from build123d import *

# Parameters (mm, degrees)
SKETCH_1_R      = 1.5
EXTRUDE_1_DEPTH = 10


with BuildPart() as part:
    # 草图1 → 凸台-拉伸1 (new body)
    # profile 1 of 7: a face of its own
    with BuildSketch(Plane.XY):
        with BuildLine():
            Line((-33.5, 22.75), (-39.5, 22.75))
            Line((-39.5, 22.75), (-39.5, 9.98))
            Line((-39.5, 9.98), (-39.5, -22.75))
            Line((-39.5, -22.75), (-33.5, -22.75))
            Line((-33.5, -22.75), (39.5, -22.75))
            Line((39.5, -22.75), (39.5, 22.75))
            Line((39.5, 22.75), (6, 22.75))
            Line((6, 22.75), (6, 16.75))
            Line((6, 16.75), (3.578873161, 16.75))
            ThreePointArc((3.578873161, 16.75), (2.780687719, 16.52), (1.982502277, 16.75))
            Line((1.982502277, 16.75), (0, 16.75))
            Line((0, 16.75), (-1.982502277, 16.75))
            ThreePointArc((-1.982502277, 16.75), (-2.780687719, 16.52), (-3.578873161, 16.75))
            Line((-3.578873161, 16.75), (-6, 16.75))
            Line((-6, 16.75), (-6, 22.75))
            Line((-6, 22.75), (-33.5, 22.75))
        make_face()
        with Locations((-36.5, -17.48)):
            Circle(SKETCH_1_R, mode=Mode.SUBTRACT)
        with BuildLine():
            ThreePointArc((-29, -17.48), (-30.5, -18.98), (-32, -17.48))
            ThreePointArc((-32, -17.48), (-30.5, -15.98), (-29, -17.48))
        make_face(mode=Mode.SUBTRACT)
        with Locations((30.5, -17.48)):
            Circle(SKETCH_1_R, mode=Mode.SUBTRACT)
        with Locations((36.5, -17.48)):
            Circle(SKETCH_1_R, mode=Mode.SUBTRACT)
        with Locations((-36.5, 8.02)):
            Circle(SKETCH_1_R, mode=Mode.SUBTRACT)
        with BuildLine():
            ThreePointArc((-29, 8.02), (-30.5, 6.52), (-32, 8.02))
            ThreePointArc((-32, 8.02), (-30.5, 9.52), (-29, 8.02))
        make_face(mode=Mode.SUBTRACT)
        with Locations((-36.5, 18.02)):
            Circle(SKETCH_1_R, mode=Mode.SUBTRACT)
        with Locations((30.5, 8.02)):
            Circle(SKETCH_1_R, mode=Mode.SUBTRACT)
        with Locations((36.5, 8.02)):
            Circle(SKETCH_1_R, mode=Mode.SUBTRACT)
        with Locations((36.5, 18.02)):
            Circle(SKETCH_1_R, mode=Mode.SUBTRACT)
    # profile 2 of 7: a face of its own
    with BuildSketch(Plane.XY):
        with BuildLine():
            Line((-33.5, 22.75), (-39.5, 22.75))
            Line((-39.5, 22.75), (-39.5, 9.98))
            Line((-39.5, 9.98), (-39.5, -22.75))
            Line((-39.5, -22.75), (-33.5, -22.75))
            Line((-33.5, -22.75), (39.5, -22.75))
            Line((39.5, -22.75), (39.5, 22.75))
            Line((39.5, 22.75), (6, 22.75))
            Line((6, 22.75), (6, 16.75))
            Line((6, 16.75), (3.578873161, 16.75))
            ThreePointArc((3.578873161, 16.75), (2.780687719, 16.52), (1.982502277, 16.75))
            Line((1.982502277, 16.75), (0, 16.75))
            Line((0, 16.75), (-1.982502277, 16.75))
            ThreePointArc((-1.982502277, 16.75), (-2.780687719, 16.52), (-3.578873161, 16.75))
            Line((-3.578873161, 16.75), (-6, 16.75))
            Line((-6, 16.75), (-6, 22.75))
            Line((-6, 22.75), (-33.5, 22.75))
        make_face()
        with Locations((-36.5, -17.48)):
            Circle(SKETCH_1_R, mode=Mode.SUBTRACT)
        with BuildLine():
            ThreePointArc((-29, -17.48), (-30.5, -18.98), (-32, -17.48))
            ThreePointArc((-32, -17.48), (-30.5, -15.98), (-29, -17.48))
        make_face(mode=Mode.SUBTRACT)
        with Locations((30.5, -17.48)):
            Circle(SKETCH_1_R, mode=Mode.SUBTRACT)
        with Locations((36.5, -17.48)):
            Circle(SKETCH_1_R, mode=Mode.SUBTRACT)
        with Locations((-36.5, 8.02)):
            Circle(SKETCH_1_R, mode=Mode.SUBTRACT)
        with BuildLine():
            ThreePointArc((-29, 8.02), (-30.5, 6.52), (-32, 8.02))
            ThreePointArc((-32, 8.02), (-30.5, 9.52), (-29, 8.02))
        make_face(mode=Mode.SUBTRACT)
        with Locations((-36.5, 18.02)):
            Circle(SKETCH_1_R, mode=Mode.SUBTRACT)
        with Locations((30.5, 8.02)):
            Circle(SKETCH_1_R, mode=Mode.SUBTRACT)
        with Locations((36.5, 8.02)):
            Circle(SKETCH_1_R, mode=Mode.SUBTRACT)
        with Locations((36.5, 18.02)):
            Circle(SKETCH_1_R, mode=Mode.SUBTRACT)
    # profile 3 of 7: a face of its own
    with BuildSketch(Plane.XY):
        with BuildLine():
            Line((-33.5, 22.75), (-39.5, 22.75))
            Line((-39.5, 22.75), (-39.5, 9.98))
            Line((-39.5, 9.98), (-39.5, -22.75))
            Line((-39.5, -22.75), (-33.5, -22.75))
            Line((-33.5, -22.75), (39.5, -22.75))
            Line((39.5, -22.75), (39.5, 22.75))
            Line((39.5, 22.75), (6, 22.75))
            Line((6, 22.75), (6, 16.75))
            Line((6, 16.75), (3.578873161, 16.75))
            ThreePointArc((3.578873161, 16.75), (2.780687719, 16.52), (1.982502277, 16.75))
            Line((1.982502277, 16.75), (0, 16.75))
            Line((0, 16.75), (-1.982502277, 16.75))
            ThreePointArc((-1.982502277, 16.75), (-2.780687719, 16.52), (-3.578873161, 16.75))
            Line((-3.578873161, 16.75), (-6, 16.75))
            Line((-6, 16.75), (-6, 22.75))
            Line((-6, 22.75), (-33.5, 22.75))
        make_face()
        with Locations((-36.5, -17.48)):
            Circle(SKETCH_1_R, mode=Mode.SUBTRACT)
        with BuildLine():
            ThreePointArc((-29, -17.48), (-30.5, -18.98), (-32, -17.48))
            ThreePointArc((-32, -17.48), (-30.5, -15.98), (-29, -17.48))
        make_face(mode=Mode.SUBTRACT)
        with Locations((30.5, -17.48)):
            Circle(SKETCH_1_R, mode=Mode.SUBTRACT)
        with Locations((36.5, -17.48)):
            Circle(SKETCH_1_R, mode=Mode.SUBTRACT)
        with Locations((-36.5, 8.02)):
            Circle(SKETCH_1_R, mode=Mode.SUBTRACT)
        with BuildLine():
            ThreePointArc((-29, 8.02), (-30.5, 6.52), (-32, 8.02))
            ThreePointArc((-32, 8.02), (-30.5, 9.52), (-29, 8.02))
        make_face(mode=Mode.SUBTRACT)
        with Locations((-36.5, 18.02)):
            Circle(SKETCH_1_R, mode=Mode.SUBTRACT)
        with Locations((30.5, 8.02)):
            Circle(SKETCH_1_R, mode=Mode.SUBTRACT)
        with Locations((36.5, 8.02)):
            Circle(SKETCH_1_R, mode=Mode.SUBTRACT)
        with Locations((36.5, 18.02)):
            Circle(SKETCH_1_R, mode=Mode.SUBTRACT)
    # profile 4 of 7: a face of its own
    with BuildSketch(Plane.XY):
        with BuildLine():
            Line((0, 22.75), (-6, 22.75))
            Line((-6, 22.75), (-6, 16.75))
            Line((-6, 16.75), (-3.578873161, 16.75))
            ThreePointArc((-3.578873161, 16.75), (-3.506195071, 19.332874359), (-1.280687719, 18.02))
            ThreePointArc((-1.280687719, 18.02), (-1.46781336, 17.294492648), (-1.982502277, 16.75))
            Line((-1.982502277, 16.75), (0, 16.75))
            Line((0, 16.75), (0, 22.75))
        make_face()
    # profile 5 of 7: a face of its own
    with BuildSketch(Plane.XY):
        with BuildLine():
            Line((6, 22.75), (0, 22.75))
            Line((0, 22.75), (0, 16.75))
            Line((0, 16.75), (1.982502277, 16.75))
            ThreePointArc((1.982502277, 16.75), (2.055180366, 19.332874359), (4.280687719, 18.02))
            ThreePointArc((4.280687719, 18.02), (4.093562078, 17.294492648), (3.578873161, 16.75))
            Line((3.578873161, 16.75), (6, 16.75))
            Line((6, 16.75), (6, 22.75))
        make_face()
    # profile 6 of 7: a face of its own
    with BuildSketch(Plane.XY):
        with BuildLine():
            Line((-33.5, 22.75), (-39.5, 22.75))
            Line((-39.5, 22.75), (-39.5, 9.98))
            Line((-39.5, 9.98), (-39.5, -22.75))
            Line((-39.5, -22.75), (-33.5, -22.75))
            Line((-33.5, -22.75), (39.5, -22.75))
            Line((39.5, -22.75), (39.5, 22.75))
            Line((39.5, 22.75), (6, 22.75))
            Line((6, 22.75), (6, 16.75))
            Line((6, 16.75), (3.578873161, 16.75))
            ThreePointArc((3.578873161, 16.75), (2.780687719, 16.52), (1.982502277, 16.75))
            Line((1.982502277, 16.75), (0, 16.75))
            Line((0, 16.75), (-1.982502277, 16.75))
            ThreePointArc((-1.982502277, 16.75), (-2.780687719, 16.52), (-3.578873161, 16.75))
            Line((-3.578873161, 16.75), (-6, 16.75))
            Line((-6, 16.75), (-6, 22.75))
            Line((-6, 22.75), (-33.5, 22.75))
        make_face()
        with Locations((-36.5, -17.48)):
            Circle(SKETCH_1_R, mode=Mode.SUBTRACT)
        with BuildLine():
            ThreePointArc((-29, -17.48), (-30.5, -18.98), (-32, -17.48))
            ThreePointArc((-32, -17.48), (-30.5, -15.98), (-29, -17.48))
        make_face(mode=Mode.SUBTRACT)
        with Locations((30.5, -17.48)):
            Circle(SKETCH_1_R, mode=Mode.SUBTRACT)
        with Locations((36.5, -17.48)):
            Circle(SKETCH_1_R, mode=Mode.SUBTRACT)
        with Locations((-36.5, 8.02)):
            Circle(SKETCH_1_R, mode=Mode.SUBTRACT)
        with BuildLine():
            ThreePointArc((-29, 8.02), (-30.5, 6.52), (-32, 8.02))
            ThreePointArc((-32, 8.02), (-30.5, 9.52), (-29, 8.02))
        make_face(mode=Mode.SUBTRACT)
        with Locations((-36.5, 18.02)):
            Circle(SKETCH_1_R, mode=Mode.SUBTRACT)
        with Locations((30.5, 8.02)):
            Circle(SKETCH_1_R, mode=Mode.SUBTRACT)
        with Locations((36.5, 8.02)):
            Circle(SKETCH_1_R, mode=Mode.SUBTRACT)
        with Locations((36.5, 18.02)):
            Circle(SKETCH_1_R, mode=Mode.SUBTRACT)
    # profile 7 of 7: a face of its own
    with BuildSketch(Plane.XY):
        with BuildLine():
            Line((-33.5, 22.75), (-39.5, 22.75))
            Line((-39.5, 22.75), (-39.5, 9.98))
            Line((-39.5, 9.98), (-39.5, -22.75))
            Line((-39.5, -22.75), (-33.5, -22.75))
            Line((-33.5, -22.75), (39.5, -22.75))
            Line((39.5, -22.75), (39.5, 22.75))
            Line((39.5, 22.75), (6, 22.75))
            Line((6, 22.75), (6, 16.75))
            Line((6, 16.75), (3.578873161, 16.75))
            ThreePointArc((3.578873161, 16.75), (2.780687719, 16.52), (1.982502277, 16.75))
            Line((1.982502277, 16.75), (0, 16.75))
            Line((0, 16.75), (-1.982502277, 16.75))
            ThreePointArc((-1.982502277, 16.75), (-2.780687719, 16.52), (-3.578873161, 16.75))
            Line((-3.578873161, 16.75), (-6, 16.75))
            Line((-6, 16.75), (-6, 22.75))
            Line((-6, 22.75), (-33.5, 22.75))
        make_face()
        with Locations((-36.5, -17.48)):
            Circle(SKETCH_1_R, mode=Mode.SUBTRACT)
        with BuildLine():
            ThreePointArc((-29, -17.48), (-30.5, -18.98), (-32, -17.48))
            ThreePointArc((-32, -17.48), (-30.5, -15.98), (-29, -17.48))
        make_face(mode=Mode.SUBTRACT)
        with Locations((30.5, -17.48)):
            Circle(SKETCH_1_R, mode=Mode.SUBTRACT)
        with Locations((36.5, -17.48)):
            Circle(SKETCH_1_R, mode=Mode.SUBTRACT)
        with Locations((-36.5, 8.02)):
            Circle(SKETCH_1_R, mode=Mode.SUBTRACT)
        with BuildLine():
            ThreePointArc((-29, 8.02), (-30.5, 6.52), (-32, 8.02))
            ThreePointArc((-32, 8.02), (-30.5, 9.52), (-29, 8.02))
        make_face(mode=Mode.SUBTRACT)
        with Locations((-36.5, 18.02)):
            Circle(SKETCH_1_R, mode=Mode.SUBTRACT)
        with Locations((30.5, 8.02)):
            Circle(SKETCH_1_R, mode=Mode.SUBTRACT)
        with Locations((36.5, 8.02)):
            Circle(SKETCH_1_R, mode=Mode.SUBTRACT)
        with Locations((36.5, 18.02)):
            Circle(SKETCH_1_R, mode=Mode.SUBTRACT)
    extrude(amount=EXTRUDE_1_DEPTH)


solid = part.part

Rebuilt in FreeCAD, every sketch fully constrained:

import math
import FreeCAD as App
import Part
import Sketcher

V = App.Vector
Q = App.Units.Quantity

doc = App.newDocument("Part")
body = doc.addObject("PartDesign::Body", "Body")

# Sketch on XY plane
sketch1 = body.newObject("Sketcher::SketchObject", "Sketch")
sketch1.AttachmentSupport = (doc.getObject("XY_Plane"), [""])
sketch1.MapMode = "FlatFace"
sketch1.addGeometry(Part.LineSegment(V(-39.5, 22.8, 0), V(-39.5, -22.8, 0)), False)
sketch1.addGeometry(Part.LineSegment(V(-39.5, -22.8, 0), V(39.5, -22.8, 0)), False)
sketch1.addGeometry(Part.LineSegment(V(39.5, -22.8, 0), V(39.5, 22.8, 0)), False)
sketch1.addGeometry(Part.LineSegment(V(39.5, 22.8, 0), V(-39.5, 22.8, 0)), False)
sketch1.addGeometry(Part.ArcOfCircle(Part.Circle(V(-2.8, 18, 0), V(0, 0, 1), 1.5), math.radians(-122), math.radians(-58)), False)
sketch1.addGeometry(Part.ArcOfCircle(Part.Circle(V(-2.8, 18, 0), V(0, 0, 1), 1.5), math.radians(0), math.radians(238)), False)
sketch1.addGeometry(Part.ArcOfCircle(Part.Circle(V(-2.8, 18, 0), V(0, 0, 1), 1.5), math.radians(-58), math.radians(0)), False)
sketch1.addGeometry(Part.ArcOfCircle(Part.Circle(V(2.8, 18, 0), V(0, 0, 1), 1.5), math.radians(-122), math.radians(-58)), False)
sketch1.addGeometry(Part.ArcOfCircle(Part.Circle(V(2.8, 18, 0), V(0, 0, 1), 1.5), math.radians(0), math.radians(238)), False)
sketch1.addGeometry(Part.ArcOfCircle(Part.Circle(V(2.8, 18, 0), V(0, 0, 1), 1.5), math.radians(-58), math.radians(0)), False)
sketch1.addGeometry(Part.Circle(V(-36.5, -17.5, 0), V(0, 0, 1), 1.5), False)
sketch1.addGeometry(Part.Circle(V(-30.5, -17.5, 0), V(0, 0, 1), 1.5), False)
sketch1.addGeometry(Part.Circle(V(30.5, -17.5, 0), V(0, 0, 1), 1.5), False)
sketch1.addGeometry(Part.Circle(V(36.5, -17.5, 0), V(0, 0, 1), 1.5), False)
sketch1.addGeometry(Part.Circle(V(-36.5, 8, 0), V(0, 0, 1), 1.5), False)
sketch1.addGeometry(Part.Circle(V(-30.5, 8, 0), V(0, 0, 1), 1.5), False)
sketch1.addGeometry(Part.Circle(V(-36.5, 18, 0), V(0, 0, 1), 1.5), False)
sketch1.addGeometry(Part.Circle(V(30.5, 8, 0), V(0, 0, 1), 1.5), False)
sketch1.addGeometry(Part.Circle(V(36.5, 8, 0), V(0, 0, 1), 1.5), False)
sketch1.addGeometry(Part.Circle(V(36.5, 18, 0), V(0, 0, 1), 1.5), False)
sketch1.addConstraint(Sketcher.Constraint("Coincident", 0, 2, 1, 1))
sketch1.addConstraint(Sketcher.Constraint("Coincident", 1, 2, 2, 1))
sketch1.addConstraint(Sketcher.Constraint("Coincident", 2, 2, 3, 1))
sketch1.addConstraint(Sketcher.Constraint("Coincident", 3, 2, 0, 1))
sketch1.addConstraint(Sketcher.Constraint("Tangent", 4, 1, 5, 2))
sketch1.addConstraint(Sketcher.Constraint("Tangent", 5, 1, 6, 2))
sketch1.addConstraint(Sketcher.Constraint("Tangent", 6, 1, 4, 2))
sketch1.addConstraint(Sketcher.Constraint("Tangent", 7, 1, 8, 2))
sketch1.addConstraint(Sketcher.Constraint("Tangent", 8, 1, 9, 2))
sketch1.addConstraint(Sketcher.Constraint("Tangent", 9, 1, 7, 2))
sketch1.addConstraint(Sketcher.Constraint("Vertical", 0))
sketch1.addConstraint(Sketcher.Constraint("Horizontal", 1))
sketch1.addConstraint(Sketcher.Constraint("Vertical", 2))
sketch1.addConstraint(Sketcher.Constraint("Horizontal", 3))
sketch1.addConstraint(Sketcher.Constraint("Equal", 6, 7))
sketch1.addConstraint(Sketcher.Constraint("Equal", 9, 10))
sketch1.addConstraint(Sketcher.Constraint("Equal", 10, 11))
sketch1.addConstraint(Sketcher.Constraint("Equal", 11, 12))
sketch1.addConstraint(Sketcher.Constraint("Equal", 12, 13))
sketch1.addConstraint(Sketcher.Constraint("Equal", 13, 14))
sketch1.addConstraint(Sketcher.Constraint("Equal", 14, 15))
sketch1.addConstraint(Sketcher.Constraint("Equal", 15, 16))
sketch1.addConstraint(Sketcher.Constraint("Equal", 16, 17))
sketch1.addConstraint(Sketcher.Constraint("Equal", 17, 18))
sketch1.addConstraint(Sketcher.Constraint("Equal", 18, 19))
sketch1.addConstraint(Sketcher.Constraint("Symmetric", 0, 2, 2, 2, -1, 1))
sketch1.addConstraint(Sketcher.Constraint("Symmetric", 4, 3, 7, 3, -2))
sketch1.addConstraint(Sketcher.Constraint("Symmetric", 11, 3, 12, 3, -2))
sketch1.addConstraint(Sketcher.Constraint("Symmetric", 10, 3, 13, 3, -2))
sketch1.addConstraint(Sketcher.Constraint("Symmetric", 15, 3, 17, 3, -2))
sketch1.addConstraint(Sketcher.Constraint("Symmetric", 14, 3, 18, 3, -2))
sketch1.addConstraint(Sketcher.Constraint("Symmetric", 16, 3, 19, 3, -2))
sketch1.addConstraint(Sketcher.Constraint("Horizontal", 10, 3, 11, 3))
sketch1.addConstraint(Sketcher.Constraint("Horizontal", 14, 3, 15, 3))
sketch1.addConstraint(Sketcher.Constraint("Horizontal", 9, 3, 16, 3))
sketch1.addConstraint(Sketcher.Constraint("Horizontal", 19, 3, 5, 1))
sketch1.addConstraint(Sketcher.Constraint("Horizontal", 4, 1, 6, 1))
sketch1.addConstraint(Sketcher.Constraint("Horizontal", 6, 1, 7, 1))
sketch1.addConstraint(Sketcher.Constraint("Horizontal", 5, 1, 8, 1))
sketch1.addConstraint(Sketcher.Constraint("Horizontal", 7, 1, 9, 1))
sketch1.addConstraint(Sketcher.Constraint("Vertical", 10, 3, 14, 3))
sketch1.addConstraint(Sketcher.Constraint("Vertical", 11, 3, 15, 3))
sketch1.addConstraint(Sketcher.Constraint("Vertical", 14, 3, 16, 3))
sketch1.addConstraint(Sketcher.Constraint("Diameter", 10, Q("3 mm")))
sketch1.addConstraint(Sketcher.Constraint("DistanceX", 1, 1, 1, 2, Q("79 mm")))
sketch1.addConstraint(Sketcher.Constraint("DistanceY", 0, 2, 0, 1, Q("45.5 mm")))
sketch1.addConstraint(Sketcher.Constraint("DistanceX", 10, 3, 11, 3, Q("6 mm")))
sketch1.addConstraint(Sketcher.Constraint("DistanceY", 14, 3, 4, 3, Q("10 mm")))
sketch1.addConstraint(Sketcher.Constraint("DistanceX", 0, 2, 10, 3, Q("3 mm")))
sketch1.addConstraint(Sketcher.Constraint("DistanceY", 10, 3, 4, 3, Q("35.5 mm")))
sketch1.addConstraint(Sketcher.Constraint("DistanceY", -1, 1, 4, 3, Q("18.02 mm")))
sketch1.addConstraint(Sketcher.Constraint("DistanceY", -1, 1, 4, 1, Q("16.75 mm")))
sketch1.addConstraint(Sketcher.Constraint("DistanceX", 4, 1, 7, 3, Q("6.359561 mm")))
pad1 = body.newObject("PartDesign::Pad", "Pad")
pad1.Profile = sketch1
pad1.Length = 10

doc.recompute()
